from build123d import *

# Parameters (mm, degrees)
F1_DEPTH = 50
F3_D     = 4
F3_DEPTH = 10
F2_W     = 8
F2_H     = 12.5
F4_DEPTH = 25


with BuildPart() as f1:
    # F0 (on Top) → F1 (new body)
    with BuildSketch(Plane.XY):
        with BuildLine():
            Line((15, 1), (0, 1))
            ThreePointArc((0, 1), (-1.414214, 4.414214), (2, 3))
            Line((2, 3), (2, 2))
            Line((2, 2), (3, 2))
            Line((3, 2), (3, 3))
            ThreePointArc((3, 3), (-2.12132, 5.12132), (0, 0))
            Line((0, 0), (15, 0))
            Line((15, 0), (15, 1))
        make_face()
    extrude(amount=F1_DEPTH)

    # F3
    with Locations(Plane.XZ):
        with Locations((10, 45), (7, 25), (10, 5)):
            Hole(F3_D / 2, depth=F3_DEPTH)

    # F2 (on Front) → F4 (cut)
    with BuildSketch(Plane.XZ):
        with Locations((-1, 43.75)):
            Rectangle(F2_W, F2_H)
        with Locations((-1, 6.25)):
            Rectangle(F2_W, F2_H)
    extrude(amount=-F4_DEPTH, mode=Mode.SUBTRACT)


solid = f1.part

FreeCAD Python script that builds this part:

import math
import FreeCAD as App
import Part
import Sketcher

V = App.Vector
Q = App.Units.Quantity

doc = App.newDocument("Part")
body = doc.addObject("PartDesign::Body", "Body")

# Sketch on XY plane
sketch1 = body.newObject("Sketcher::SketchObject", "Sketch")
sketch1.AttachmentSupport = (doc.getObject("XY_Plane"), [""])
sketch1.MapMode = "FlatFace"
sketch1.addGeometry([
    Part.LineSegment(V(15, 1, 0), V(0, 1, 0)),  # 0
    Part.ArcOfCircle(Part.Circle(V(0, 3, 0), V(0, 0, 1), 2), math.radians(0), math.radians(270)),  # 1
    Part.LineSegment(V(2, 3, 0), V(2, 2, 0)),  # 2
    Part.LineSegment(V(2, 2, 0), V(3, 2, 0)),  # 3
    Part.LineSegment(V(3, 2, 0), V(3, 3, 0)),  # 4
    Part.ArcOfCircle(Part.Circle(V(0, 3, 0), V(0, 0, 1), 3), math.radians(0), math.radians(270)),  # 5
    Part.LineSegment(V(0, 0, 0), V(15, 0, 0)),  # 6
    Part.LineSegment(V(15, 0, 0), V(15, 1, 0)),  # 7
], False)
sketch1.addConstraint([
    Sketcher.Constraint("Tangent", 0, 2, 1, 2),
    Sketcher.Constraint("Tangent", 1, 1, 2, 1),
    Sketcher.Constraint("Coincident", 2, 2, 3, 1),
    Sketcher.Constraint("Coincident", 3, 2, 4, 1),
    Sketcher.Constraint("Tangent", 4, 2, 5, 1),
    Sketcher.Constraint("Tangent", 5, 2, 6, 1),
    Sketcher.Constraint("Coincident", 6, 2, 7, 1),
    Sketcher.Constraint("Coincident", 7, 2, 0, 1),
    Sketcher.Constraint("Horizontal", 0),
    Sketcher.Constraint("Vertical", 2),
    Sketcher.Constraint("Horizontal", 3),
    Sketcher.Constraint("Vertical", 4),
    Sketcher.Constraint("Horizontal", 6),
    Sketcher.Constraint("Vertical", 7),
    Sketcher.Constraint("Coincident", 5, 2, -1, 1),
    Sketcher.Constraint("Coincident", 5, 3, 1, 3),
    Sketcher.Constraint("Equal", 3, 2),
    Sketcher.Constraint("Radius", 1, Q("2 mm")),
    Sketcher.Constraint("Radius", 5, Q("3 mm")),
    Sketcher.Constraint("DistanceX", 0, 2, 0, 1, Q("15 mm")),
])
pad1 = body.newObject("PartDesign::Pad", "Pad")
pad1.Profile = sketch1
pad1.Length = 50

# Sketch on XZ plane
sketch2 = body.newObject("Sketcher::SketchObject", "Sketch001")
sketch2.AttachmentSupport = (doc.getObject("XZ_Plane"), [""])
sketch2.MapMode = "FlatFace"
sketch2.addGeometry([
    Part.Circle(V(10, 45, 0), V(0, 0, 1), 2),
    Part.Circle(V(7, 25, 0), V(0, 0, 1), 2),
    Part.Circle(V(10, 5, 0), V(0, 0, 1), 2),
], False)
sketch2.addConstraint([
    Sketcher.Constraint("Equal", 0, 1),
    Sketcher.Constraint("Equal", 1, 2),
    Sketcher.Constraint("Vertical", 0, 3, 2, 3),
    Sketcher.Constraint("Diameter", 0, Q("4 mm")),
    Sketcher.Constraint("DistanceX", -1, 1, 0, 3, Q("10 mm")),
    Sketcher.Constraint("DistanceY", -1, 1, 0, 3, Q("45 mm")),
    Sketcher.Constraint("DistanceX", -1, 1, 1, 3, Q("7 mm")),
    Sketcher.Constraint("DistanceY", -1, 1, 1, 3, Q("25 mm")),
    Sketcher.Constraint("DistanceY", -1, 1, 2, 3, Q("5 mm")),
])
doc.recompute()
hole = body.newObject("PartDesign::Hole", "Hole")
hole.Profile = sketch2
hole.ThreadType = "None"
hole.Diameter = 4
hole.DepthType = "Dimension"
hole.Depth = 10
hole.DrillPoint = "Flat"

# Sketch on XZ plane
sketch3 = body.newObject("Sketcher::SketchObject", "Sketch002")
sketch3.AttachmentSupport = (doc.getObject("XZ_Plane"), [""])
sketch3.MapMode = "FlatFace"
sketch3.addGeometry([
    Part.LineSegment(V(-5, 50, 0), V(-5, 38, 0)),  # 0
    Part.LineSegment(V(-5, 38, 0), V(3, 38, 0)),  # 1
    Part.LineSegment(V(3, 38, 0), V(3, 50, 0)),  # 2
    Part.LineSegment(V(3, 50, 0), V(-5, 50, 0)),  # 3
    Part.LineSegment(V(-5, 12, 0), V(-5, 0, 0)),  # 4
    Part.LineSegment(V(-5, 0, 0), V(3, 0, 0)),  # 5
    Part.LineSegment(V(3, 0, 0), V(3, 12, 0)),  # 6
    Part.LineSegment(V(3, 12, 0), V(-5, 12, 0)),  # 7
], False)
sketch3.addConstraint([
    Sketcher.Constraint("Coincident", 0, 2, 1, 1),
    Sketcher.Constraint("Coincident", 1, 2, 2, 1),
    Sketcher.Constraint("Coincident", 2, 2, 3, 1),
    Sketcher.Constraint("Coincident", 3, 2, 0, 1),
    Sketcher.Constraint("Coincident", 4, 2, 5, 1),
    Sketcher.Constraint("Coincident", 5, 2, 6, 1),
    Sketcher.Constraint("Coincident", 6, 2, 7, 1),
    Sketcher.Constraint("Coincident", 7, 2, 4, 1),
    Sketcher.Constraint("Vertical", 0),
    Sketcher.Constraint("Horizontal", 1),
    Sketcher.Constraint("Vertical", 2),
    Sketcher.Constraint("Horizontal", 3),
    Sketcher.Constraint("Vertical", 4),
    Sketcher.Constraint("Horizontal", 5),
    Sketcher.Constraint("Vertical", 6),
    Sketcher.Constraint("Horizontal", 7),
    Sketcher.Constraint("PointOnObject", 4, 2, -1),
    Sketcher.Constraint("Vertical", 3, 2, 4, 2),
    Sketcher.Constraint("Vertical", 2, 2, 5, 2),
    Sketcher.Constraint("Equal", 2, 4),
    Sketcher.Constraint("DistanceX", 1, 1, 1, 2, Q("8 mm")),
    Sketcher.Constraint("DistanceY", 0, 2, 0, 1, Q("12.5 mm")),
    Sketcher.Constraint("DistanceX", 0, 2, -1, 1, Q("5 mm")),
    Sketcher.Constraint("DistanceY", -1, 1, 2, 2, Q("50 mm")),
])
pocket1 = body.newObject("PartDesign::Pocket", "Pocket")
pocket1.Profile = sketch3
pocket1.Length = 25

doc.recompute()
